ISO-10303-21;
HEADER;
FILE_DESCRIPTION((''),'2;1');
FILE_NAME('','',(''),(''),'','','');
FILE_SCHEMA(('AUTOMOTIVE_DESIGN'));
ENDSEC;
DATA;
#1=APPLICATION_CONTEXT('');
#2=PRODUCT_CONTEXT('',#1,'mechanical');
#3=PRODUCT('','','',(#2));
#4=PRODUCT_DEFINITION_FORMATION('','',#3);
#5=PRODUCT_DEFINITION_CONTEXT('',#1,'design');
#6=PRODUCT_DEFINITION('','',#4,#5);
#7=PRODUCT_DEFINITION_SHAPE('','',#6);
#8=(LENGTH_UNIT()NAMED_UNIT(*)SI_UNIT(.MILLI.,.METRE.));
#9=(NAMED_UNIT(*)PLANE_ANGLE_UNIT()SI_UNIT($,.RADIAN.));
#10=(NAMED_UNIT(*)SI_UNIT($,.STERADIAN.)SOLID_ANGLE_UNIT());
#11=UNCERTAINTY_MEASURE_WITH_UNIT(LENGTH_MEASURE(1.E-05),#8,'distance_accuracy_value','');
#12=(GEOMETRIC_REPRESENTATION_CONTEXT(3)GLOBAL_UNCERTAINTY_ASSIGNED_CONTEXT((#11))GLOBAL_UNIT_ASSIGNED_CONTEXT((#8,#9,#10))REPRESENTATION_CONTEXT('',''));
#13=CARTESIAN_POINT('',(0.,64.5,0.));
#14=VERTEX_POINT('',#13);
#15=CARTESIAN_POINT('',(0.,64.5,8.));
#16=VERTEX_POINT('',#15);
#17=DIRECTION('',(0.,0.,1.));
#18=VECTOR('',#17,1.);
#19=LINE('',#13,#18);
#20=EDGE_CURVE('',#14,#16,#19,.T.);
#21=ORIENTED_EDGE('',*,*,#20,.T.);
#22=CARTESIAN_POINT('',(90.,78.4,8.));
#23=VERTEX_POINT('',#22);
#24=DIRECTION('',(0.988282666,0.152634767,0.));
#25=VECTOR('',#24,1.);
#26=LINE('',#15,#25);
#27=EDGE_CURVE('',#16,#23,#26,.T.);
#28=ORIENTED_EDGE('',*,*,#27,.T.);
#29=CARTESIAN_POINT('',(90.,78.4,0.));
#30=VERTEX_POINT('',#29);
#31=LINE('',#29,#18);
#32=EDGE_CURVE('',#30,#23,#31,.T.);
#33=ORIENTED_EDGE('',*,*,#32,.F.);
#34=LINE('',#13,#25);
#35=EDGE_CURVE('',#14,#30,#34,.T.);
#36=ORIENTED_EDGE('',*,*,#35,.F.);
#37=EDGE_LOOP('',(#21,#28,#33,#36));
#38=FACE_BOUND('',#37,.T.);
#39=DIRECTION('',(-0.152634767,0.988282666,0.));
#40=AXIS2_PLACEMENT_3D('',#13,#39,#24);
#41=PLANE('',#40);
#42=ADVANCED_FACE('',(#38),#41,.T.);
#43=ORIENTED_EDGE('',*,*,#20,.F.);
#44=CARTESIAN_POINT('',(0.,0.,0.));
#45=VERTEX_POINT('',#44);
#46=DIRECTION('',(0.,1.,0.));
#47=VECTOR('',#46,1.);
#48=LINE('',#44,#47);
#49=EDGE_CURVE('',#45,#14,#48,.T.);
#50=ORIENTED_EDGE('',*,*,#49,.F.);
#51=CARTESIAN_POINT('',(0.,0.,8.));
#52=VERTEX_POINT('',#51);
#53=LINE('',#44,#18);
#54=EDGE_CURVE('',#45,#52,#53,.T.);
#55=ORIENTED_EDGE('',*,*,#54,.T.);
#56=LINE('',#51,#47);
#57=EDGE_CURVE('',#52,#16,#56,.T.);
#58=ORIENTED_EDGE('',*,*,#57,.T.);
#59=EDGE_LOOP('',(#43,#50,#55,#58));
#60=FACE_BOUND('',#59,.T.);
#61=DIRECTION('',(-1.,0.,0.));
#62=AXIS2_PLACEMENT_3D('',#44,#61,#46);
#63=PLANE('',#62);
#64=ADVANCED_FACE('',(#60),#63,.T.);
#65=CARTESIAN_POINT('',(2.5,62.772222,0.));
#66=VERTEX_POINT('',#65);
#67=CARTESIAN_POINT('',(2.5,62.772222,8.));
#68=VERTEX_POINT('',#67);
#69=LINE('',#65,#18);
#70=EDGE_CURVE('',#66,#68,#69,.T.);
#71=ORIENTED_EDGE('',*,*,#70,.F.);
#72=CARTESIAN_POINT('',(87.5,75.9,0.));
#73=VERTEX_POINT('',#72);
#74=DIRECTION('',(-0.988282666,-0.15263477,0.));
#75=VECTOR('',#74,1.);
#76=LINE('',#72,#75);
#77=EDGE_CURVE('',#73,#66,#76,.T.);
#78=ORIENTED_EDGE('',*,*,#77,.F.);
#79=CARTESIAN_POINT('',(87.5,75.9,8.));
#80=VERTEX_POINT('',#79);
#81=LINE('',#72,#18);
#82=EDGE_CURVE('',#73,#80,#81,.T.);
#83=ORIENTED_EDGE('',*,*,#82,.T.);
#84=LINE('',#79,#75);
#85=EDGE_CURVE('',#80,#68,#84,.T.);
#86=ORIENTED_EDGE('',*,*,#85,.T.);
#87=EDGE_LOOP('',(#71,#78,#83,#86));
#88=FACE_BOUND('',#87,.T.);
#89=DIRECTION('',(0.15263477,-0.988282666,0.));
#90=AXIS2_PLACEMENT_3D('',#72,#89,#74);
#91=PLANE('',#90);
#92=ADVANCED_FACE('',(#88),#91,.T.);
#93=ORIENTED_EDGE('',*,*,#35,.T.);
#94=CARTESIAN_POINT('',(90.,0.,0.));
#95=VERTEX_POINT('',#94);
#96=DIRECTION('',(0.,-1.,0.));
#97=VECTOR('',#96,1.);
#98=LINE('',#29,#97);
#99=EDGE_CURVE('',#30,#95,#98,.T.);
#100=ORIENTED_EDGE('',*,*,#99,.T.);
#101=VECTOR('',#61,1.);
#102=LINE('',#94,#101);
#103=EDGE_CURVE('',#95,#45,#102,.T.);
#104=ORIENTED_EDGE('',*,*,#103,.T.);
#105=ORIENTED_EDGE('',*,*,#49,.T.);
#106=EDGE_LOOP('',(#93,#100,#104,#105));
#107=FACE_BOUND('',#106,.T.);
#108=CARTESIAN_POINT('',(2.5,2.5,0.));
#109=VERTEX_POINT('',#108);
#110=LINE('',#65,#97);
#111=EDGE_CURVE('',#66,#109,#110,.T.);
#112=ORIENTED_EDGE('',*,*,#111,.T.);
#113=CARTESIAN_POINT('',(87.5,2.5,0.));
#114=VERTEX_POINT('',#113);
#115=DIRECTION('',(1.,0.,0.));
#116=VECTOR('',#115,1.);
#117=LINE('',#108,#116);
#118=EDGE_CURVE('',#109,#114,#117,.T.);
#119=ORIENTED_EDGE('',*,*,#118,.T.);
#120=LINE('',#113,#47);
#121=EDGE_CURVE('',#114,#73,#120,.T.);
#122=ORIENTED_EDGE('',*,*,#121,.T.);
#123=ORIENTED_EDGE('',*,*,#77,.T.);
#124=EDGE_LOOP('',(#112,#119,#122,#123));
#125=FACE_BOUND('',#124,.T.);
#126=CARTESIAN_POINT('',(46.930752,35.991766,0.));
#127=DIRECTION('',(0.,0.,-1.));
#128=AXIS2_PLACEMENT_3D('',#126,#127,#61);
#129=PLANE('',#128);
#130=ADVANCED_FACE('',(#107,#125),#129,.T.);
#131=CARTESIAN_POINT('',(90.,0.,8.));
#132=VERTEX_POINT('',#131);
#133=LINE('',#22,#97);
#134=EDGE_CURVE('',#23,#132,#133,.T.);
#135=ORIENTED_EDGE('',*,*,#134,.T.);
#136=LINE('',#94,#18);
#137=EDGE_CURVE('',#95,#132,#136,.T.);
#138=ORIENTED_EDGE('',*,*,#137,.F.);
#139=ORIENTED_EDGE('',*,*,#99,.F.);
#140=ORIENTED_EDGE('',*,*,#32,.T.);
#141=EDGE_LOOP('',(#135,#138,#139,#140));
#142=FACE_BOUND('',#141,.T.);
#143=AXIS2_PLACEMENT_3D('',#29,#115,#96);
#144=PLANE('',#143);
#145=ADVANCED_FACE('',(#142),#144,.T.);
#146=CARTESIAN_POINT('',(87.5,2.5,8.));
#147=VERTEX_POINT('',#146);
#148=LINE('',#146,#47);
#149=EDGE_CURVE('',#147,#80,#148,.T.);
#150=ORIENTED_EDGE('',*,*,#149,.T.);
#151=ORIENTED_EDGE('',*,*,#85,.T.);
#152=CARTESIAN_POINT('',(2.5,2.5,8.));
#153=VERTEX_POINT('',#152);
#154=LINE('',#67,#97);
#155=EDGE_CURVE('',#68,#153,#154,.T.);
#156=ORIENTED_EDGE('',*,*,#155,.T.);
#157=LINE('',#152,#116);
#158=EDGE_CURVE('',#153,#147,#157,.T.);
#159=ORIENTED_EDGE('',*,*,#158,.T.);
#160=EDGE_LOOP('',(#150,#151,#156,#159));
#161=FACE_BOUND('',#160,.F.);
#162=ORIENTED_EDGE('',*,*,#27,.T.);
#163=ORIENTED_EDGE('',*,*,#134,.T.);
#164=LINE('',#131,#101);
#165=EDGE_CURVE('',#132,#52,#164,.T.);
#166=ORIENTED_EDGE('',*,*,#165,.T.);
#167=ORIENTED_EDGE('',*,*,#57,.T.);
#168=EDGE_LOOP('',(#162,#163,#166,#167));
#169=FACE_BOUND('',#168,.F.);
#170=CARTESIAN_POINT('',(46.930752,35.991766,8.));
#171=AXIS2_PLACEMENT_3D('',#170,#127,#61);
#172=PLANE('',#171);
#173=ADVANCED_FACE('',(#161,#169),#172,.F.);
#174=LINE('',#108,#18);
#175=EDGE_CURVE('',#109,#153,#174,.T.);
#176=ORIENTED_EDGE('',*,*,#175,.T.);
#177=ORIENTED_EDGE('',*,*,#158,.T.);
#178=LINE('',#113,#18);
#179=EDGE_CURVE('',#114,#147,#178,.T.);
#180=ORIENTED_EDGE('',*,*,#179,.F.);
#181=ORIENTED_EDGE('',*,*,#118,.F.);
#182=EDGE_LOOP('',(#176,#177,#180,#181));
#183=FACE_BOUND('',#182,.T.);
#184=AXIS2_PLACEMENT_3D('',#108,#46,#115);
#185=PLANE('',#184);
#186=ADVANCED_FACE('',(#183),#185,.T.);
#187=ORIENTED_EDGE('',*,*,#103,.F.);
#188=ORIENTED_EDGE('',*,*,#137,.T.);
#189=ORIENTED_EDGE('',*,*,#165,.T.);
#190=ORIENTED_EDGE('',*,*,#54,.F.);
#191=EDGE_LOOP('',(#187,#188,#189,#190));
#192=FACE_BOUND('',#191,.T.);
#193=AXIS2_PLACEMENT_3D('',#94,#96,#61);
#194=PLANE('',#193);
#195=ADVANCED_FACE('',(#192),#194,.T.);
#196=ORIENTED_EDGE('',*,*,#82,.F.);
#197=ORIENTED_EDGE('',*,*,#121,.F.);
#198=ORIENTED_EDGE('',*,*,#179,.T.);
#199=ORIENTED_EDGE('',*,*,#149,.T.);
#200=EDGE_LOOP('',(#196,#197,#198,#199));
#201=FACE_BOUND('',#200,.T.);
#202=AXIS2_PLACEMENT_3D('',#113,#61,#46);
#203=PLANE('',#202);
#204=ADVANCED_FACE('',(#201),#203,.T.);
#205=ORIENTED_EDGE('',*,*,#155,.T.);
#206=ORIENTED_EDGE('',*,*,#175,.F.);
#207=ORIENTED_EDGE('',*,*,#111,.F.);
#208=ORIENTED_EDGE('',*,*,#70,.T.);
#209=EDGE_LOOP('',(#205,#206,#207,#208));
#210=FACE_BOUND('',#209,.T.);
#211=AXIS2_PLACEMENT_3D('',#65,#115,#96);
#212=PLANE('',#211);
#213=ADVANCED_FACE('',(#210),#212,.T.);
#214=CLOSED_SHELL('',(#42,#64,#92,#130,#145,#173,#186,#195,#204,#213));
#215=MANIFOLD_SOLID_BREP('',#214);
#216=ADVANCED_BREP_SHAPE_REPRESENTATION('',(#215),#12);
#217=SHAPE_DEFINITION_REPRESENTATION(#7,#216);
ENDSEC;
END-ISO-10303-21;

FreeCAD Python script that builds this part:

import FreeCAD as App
import Part
import Sketcher
from FreeCAD import Vector
Q = App.Units.Quantity


def add_polygon(sketch, points):
    """Adds a closed chain of lines whose ends are joined by coincident constraints."""
    first, n = sketch.GeometryCount, len(points)
    for a, b in zip(points, points[1:] + points[:1]):
        sketch.addGeometry(Part.LineSegment(App.Vector(*a, 0), App.Vector(*b, 0)), False)
    for i in range(n):
        sketch.addConstraint(Sketcher.Constraint("Coincident", first + i, 2, first + (i + 1) % n, 1))

doc = App.newDocument("Part")
body = doc.addObject("PartDesign::Body", "Body")

sketch1 = body.newObject("Sketcher::SketchObject", "Sketch")
sketch1.AttachmentSupport = (doc.getObject("XY_Plane"), [""])
sketch1.MapMode = "FlatFace"
add_polygon(sketch1, [(0, 64), (0, 0), (90, 0), (90, 78)])
add_polygon(sketch1, [(2, 2), (2, 63), (88, 76), (88, 2)])
sketch1.addConstraint([
    Sketcher.Constraint("Vertical", 0),
    Sketcher.Constraint("Horizontal", 1),
    Sketcher.Constraint("Vertical", 2),
    Sketcher.Constraint("Vertical", 4),
    Sketcher.Constraint("Vertical", 6),
    Sketcher.Constraint("Horizontal", 7),
    Sketcher.Constraint("Coincident", 0, 2, -1, 1),
    Sketcher.Constraint("Parallel", 3, 5),
    Sketcher.Constraint("DistanceX", 1, 1, 1, 2, Q("90 mm")),
    Sketcher.Constraint("DistanceX", 7, 2, 7, 1, Q("85 mm")),
    Sketcher.Constraint("DistanceY", 0, 2, 0, 1, Q("64.5 mm")),
    Sketcher.Constraint("DistanceY", 2, 1, 2, 2, Q("78.4 mm")),
    Sketcher.Constraint("DistanceY", 6, 2, 6, 1, Q("73.4 mm")),
    Sketcher.Constraint("DistanceY", 7, 2, 3, 2, Q("62 mm")),
    Sketcher.Constraint("DistanceX", -1, 1, 4, 2, Q("2.5 mm")),
])
pad1 = body.newObject("PartDesign::Pad", "Pad")
pad1.Profile = sketch1
pad1.Length = 8

doc.recompute()
